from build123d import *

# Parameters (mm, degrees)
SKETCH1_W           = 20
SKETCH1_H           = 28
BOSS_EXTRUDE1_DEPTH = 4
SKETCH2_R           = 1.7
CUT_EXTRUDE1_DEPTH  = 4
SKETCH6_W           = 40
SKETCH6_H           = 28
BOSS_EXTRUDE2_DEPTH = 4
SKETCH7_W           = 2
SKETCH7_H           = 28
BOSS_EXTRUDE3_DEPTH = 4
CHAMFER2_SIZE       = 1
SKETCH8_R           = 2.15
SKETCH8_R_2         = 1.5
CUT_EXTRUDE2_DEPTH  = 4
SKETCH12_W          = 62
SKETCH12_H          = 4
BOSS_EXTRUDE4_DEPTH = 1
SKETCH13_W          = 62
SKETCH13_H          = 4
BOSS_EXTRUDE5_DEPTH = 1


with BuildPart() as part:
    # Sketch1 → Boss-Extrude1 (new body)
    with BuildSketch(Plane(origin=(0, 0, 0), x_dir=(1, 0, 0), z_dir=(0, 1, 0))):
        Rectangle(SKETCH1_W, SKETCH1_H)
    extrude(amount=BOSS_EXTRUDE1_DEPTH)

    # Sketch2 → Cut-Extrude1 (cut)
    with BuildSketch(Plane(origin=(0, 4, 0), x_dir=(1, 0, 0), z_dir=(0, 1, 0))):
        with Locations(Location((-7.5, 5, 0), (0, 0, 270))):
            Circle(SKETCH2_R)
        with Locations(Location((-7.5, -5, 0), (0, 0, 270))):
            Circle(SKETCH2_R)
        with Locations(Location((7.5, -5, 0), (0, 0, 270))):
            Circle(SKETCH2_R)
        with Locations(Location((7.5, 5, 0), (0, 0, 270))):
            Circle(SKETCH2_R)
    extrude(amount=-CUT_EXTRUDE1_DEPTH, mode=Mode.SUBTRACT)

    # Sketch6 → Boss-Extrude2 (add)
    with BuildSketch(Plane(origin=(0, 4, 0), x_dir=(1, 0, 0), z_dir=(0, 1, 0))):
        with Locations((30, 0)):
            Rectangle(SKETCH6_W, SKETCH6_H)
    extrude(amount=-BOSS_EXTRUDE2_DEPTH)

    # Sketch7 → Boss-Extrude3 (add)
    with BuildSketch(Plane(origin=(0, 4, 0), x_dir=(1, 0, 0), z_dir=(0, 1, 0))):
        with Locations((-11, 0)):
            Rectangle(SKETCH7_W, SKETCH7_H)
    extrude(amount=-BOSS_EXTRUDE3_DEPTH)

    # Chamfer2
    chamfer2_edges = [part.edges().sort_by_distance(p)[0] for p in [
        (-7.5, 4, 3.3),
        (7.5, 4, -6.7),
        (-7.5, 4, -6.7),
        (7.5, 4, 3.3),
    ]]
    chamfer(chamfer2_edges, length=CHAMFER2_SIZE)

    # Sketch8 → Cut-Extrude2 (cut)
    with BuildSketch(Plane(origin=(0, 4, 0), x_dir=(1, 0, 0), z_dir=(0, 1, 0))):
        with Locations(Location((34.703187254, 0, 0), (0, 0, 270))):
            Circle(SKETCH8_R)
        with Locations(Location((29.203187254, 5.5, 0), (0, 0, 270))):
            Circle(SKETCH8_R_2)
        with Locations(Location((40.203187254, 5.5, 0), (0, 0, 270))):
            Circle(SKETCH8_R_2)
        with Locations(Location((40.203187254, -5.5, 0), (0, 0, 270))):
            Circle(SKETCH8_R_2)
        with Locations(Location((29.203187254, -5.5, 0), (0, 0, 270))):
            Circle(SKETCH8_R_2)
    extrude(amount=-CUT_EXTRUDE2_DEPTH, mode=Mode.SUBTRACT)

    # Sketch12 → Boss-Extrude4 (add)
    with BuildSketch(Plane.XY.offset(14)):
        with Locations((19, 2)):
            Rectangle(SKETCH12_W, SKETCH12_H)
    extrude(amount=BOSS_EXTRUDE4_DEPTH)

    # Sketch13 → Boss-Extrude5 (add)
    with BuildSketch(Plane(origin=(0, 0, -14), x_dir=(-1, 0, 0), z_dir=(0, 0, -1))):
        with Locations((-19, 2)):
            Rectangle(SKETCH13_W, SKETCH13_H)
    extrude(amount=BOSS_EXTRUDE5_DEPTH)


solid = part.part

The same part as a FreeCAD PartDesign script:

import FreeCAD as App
import Part
import Sketcher
from FreeCAD import Vector


def edges_at(feature, points):
    """Names of the edges that pass closest to the given points."""
    edges = feature.Shape.Edges
    near = lambda p: min(range(len(edges)), key=lambda i: edges[i].distToShape(Part.Vertex(*p))[0])
    return sorted({f"Edge{near(p) + 1}" for p in points})


def add_polygon(sketch, points):
    """Adds a closed chain of lines whose ends are joined by coincident constraints."""
    first, n = sketch.GeometryCount, len(points)
    for a, b in zip(points, points[1:] + points[:1]):
        sketch.addGeometry(Part.LineSegment(App.Vector(*a, 0), App.Vector(*b, 0)), False)
    for i in range(n):
        sketch.addConstraint(Sketcher.Constraint("Coincident", first + i, 2, first + (i + 1) % n, 1))

doc = App.newDocument("Part")
body = doc.addObject("PartDesign::Body", "Body")

# Sketch on XZ plane
sketch1 = body.newObject("Sketcher::SketchObject", "Sketch")
sketch1.AttachmentSupport = (doc.getObject("XZ_Plane"), [""])
sketch1.MapMode = "FlatFace"
add_polygon(sketch1, [(-10, -14), (-10, 14), (10, 14), (10, -14)])  # lines 0-3
sketch1.addConstraint([
    Sketcher.Constraint("Vertical", 0),
    Sketcher.Constraint("Horizontal", 1),
    Sketcher.Constraint("Vertical", 2),
    Sketcher.Constraint("Horizontal", 3),
    Sketcher.Constraint("Symmetric", 0, 2, 2, 2, -1, 1),
    Sketcher.Constraint("DistanceX", 1, 1, 1, 2, 20.0),
    Sketcher.Constraint("DistanceY", 0, 1, 0, 2, 28.0),
])
pad1 = body.newObject("PartDesign::Pad", "Pad")
pad1.Profile = sketch1
pad1.Length = 4
pad1.Reversed = True

# Sketch on XZ plane
sketch2 = body.newObject("Sketcher::SketchObject", "Sketch001")
sketch2.AttachmentSupport = (doc.getObject("XZ_Plane"), [""])
sketch2.MapMode = "FlatFace"
sketch2.AttachmentOffset = App.Placement(Vector(0, 0, -4), App.Rotation())
sketch2.addGeometry([
    Part.Circle(Vector(-7.5, -5, 0), Vector(0, 0, 1), 1.7),
    Part.Circle(Vector(-7.5, 5, 0), Vector(0, 0, 1), 1.7),
    Part.Circle(Vector(7.5, 5, 0), Vector(0, 0, 1), 1.7),
    Part.Circle(Vector(7.5, -5, 0), Vector(0, 0, 1), 1.7),
], False)
sketch2.addConstraint([
    Sketcher.Constraint("Equal", 0, 1),
    Sketcher.Constraint("Equal", 1, 2),
    Sketcher.Constraint("Equal", 2, 3),
    Sketcher.Constraint("Symmetric", 0, 3, 2, 3, -1, 1),
    Sketcher.Constraint("Symmetric", 1, 3, 3, 3, -1, 1),
    Sketcher.Constraint("Symmetric", 1, 3, 2, 3, -2),
    Sketcher.Constraint("Diameter", 0, 3.4),
    Sketcher.Constraint("DistanceY", 0, 3, -1, 1, 5.0),
    Sketcher.Constraint("DistanceX", 1, 3, 2, 3, 15.0),
])
pocket1 = body.newObject("PartDesign::Pocket", "Pocket")
pocket1.Profile = sketch2
pocket1.Length = 4
pocket1.Reversed = True

# Sketch on XZ plane
sketch3 = body.newObject("Sketcher::SketchObject", "Sketch002")
sketch3.AttachmentSupport = (doc.getObject("XZ_Plane"), [""])
sketch3.MapMode = "FlatFace"
sketch3.AttachmentOffset = App.Placement(Vector(0, 0, -4), App.Rotation())
add_polygon(sketch3, [(10, -14), (10, 14), (50, 14), (50, -14)])  # lines 0-3
sketch3.addConstraint([
    Sketcher.Constraint("Vertical", 0),
    Sketcher.Constraint("Horizontal", 1),
    Sketcher.Constraint("Vertical", 2),
    Sketcher.Constraint("Horizontal", 3),
    Sketcher.Constraint("DistanceX", 1, 1, 1, 2, 40.0),
    Sketcher.Constraint("DistanceY", 0, 1, 0, 2, 28.0),
    Sketcher.Constraint("DistanceX", -1, 1, 0, 2, 10.0),
    Sketcher.Constraint("DistanceY", -1, 1, 0, 2, 14.0),
])
pad2 = body.newObject("PartDesign::Pad", "Pad001")
pad2.Profile = sketch3
pad2.Length = 4

# Sketch on XZ plane
sketch4 = body.newObject("Sketcher::SketchObject", "Sketch003")
sketch4.AttachmentSupport = (doc.getObject("XZ_Plane"), [""])
sketch4.MapMode = "FlatFace"
sketch4.AttachmentOffset = App.Placement(Vector(0, 0, -4), App.Rotation())
add_polygon(sketch4, [(-12, -14), (-12, 14), (-10, 14), (-10, -14)])  # lines 0-3
sketch4.addConstraint([
    Sketcher.Constraint("Vertical", 0),
    Sketcher.Constraint("Horizontal", 1),
    Sketcher.Constraint("Vertical", 2),
    Sketcher.Constraint("Horizontal", 3),
    Sketcher.Constraint("DistanceX", 1, 1, 1, 2, 2.0),
    Sketcher.Constraint("DistanceY", 0, 1, 0, 2, 28.0),
    Sketcher.Constraint("DistanceX", 0, 2, -1, 1, 12.0),
    Sketcher.Constraint("DistanceY", -1, 1, 0, 2, 14.0),
])
pad3 = body.newObject("PartDesign::Pad", "Pad002")
pad3.Profile = sketch4
pad3.Length = 4
doc.recompute()

chamfer = body.newObject("PartDesign::Chamfer", "Chamfer")
chamfer.Base = (pad3, edges_at(pad3, [
    (-7.5, 4, 3.3),
    (7.5, 4, -6.7),
    (-7.5, 4, -6.7),
    (7.5, 4, 3.3),
]))
chamfer.Size = 1

# Sketch on XZ plane
sketch5 = body.newObject("Sketcher::SketchObject", "Sketch004")
sketch5.AttachmentSupport = (doc.getObject("XZ_Plane"), [""])
sketch5.MapMode = "FlatFace"
sketch5.AttachmentOffset = App.Placement(Vector(0, 0, -4), App.Rotation())
sketch5.addGeometry([
    Part.Circle(Vector(34.7, 0, 0), Vector(0, 0, 1), 2.1),  # 0
    Part.Circle(Vector(29.2, -5.5, 0), Vector(0, 0, 1), 1.5),  # 1
    Part.Circle(Vector(40.2, -5.5, 0), Vector(0, 0, 1), 1.5),  # 2
    Part.Circle(Vector(40.2, 5.5, 0), Vector(0, 0, 1), 1.5),  # 3
    Part.Circle(Vector(29.2, 5.5, 0), Vector(0, 0, 1), 1.5),  # 4
], False)
sketch5.addConstraint([
    Sketcher.Constraint("Equal", 1, 2),
    Sketcher.Constraint("Equal", 2, 3),
    Sketcher.Constraint("Equal", 3, 4),
    Sketcher.Constraint("Symmetric", 2, 3, 3, 3, -1),
    Sketcher.Constraint("Symmetric", 1, 3, 4, 3, -1),
    Sketcher.Constraint("PointOnObject", 0, 3, -1),
    Sketcher.Constraint("Horizontal", 1, 3, 2, 3),
    Sketcher.Constraint("Diameter", 1, 3.0),
    Sketcher.Constraint("Diameter", 0, 4.3),
    Sketcher.Constraint("DistanceX", 1, 3, 2, 3, 11.0),
    Sketcher.Constraint("DistanceY", 2, 3, 3, 3, 11.0),
    Sketcher.Constraint("DistanceX", 1, 3, 0, 3, 5.5),
    Sketcher.Constraint("DistanceX", -1, 1, 0, 3, 34.703187),
])
pocket2 = body.newObject("PartDesign::Pocket", "Pocket001")
pocket2.Profile = sketch5
pocket2.Length = 4
pocket2.Reversed = True

# Sketch on XY plane
sketch6 = body.newObject("Sketcher::SketchObject", "Sketch005")
sketch6.AttachmentSupport = (doc.getObject("XY_Plane"), [""])
sketch6.MapMode = "FlatFace"
sketch6.AttachmentOffset = App.Placement(Vector(0, 0, 14), App.Rotation())
add_polygon(sketch6, [(-12, 4), (-12, 0), (50, 0), (50, 4)])  # lines 0-3
sketch6.addConstraint([
    Sketcher.Constraint("Vertical", 0),
    Sketcher.Constraint("Horizontal", 1),
    Sketcher.Constraint("Vertical", 2),
    Sketcher.Constraint("Horizontal", 3),
    Sketcher.Constraint("PointOnObject", 0, 2, -1),
    Sketcher.Constraint("DistanceX", 1, 1, 1, 2, 62.0),
    Sketcher.Constraint("DistanceY", 0, 2, 0, 1, 4.0),
    Sketcher.Constraint("DistanceX", 0, 2, -1, 1, 12.0),
])
pad4 = body.newObject("PartDesign::Pad", "Pad003")
pad4.Profile = sketch6
pad4.Length = 1

# Sketch on XY plane
sketch7 = body.newObject("Sketcher::SketchObject", "Sketch006")
sketch7.AttachmentSupport = (doc.getObject("XY_Plane"), [""])
sketch7.MapMode = "FlatFace"
sketch7.AttachmentOffset = App.Placement(Vector(0, 0, -14), App.Rotation())
add_polygon(sketch7, [(50, 4), (50, 0), (-12, 0), (-12, 4)])  # lines 0-3
sketch7.addConstraint([
    Sketcher.Constraint("Vertical", 0),
    Sketcher.Constraint("Horizontal", 1),
    Sketcher.Constraint("Vertical", 2),
    Sketcher.Constraint("Horizontal", 3),
    Sketcher.Constraint("PointOnObject", 0, 2, -1),
    Sketcher.Constraint("DistanceX", 1, 2, 1, 1, 62.0),
    Sketcher.Constraint("DistanceY", 0, 2, 0, 1, 4.0),
    Sketcher.Constraint("DistanceX", -1, 1, 0, 2, 50.0),
])
pad5 = body.newObject("PartDesign::Pad", "Pad004")
pad5.Profile = sketch7
pad5.Length = 1
pad5.Reversed = True

doc.recompute()
